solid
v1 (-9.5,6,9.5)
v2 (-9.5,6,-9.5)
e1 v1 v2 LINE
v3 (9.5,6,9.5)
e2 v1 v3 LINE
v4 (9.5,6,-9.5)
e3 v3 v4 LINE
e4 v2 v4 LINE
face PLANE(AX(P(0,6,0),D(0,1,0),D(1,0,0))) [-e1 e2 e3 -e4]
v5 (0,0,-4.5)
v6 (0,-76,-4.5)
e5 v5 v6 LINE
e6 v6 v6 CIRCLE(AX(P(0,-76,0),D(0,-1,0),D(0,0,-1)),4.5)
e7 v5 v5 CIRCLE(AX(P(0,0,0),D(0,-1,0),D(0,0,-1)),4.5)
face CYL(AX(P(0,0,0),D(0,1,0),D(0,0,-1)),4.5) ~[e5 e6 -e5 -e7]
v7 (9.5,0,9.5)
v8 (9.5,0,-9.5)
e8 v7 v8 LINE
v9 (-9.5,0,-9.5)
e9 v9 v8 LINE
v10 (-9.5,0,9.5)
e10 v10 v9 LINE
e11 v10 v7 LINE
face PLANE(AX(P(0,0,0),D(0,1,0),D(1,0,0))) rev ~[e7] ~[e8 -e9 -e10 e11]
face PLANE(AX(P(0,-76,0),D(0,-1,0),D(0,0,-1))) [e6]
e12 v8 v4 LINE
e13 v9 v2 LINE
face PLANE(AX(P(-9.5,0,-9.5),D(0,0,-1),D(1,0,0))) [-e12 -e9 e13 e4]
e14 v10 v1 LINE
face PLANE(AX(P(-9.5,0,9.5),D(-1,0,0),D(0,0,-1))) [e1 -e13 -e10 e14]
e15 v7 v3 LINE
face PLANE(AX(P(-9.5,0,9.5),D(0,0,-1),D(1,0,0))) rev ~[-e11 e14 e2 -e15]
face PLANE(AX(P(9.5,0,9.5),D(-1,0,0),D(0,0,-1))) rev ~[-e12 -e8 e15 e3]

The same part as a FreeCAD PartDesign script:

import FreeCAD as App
import Part
import Sketcher
from FreeCAD import Vector
Q = App.Units.Quantity


def add_polygon(sketch, points):
    """Adds a closed chain of lines whose ends are joined by coincident constraints."""
    first, n = sketch.GeometryCount, len(points)
    for a, b in zip(points, points[1:] + points[:1]):
        sketch.addGeometry(Part.LineSegment(App.Vector(*a, 0), App.Vector(*b, 0)), False)
    for i in range(n):
        sketch.addConstraint(Sketcher.Constraint("Coincident", first + i, 2, first + (i + 1) % n, 1))

doc = App.newDocument("Part")
body = doc.addObject("PartDesign::Body", "Body")

sketch1 = body.newObject("Sketcher::SketchObject", "Sketch")
sketch1.AttachmentSupport = (doc.getObject("XZ_Plane"), [""])
sketch1.MapMode = "FlatFace"
add_polygon(sketch1, [(-10, -10), (-10, 10), (10, 10), (10, -10)])
sketch1.addConstraint([
    Sketcher.Constraint("Vertical", 0),
    Sketcher.Constraint("Horizontal", 1),
    Sketcher.Constraint("Vertical", 2),
    Sketcher.Constraint("Horizontal", 3),
    Sketcher.Constraint("Symmetric", 0, 2, 2, 2, -1, 1),
    Sketcher.Constraint("Equal", 3, 0),
    Sketcher.Constraint("DistanceX", 1, 1, 1, 2, Q("19 mm")),
])
pad1 = body.newObject("PartDesign::Pad", "Pad")
pad1.Profile = sketch1
pad1.Length = 6
pad1.Reversed = True

sketch2 = body.newObject("Sketcher::SketchObject", "Sketch001")
sketch2.AttachmentSupport = (doc.getObject("XZ_Plane"), [""])
sketch2.MapMode = "FlatFace"
sketch2.addGeometry(Part.Circle(Vector(0, 0, 0), Vector(0, 0, 1), 4.5), False)
sketch2.addConstraint([
    Sketcher.Constraint("Coincident", 0, 3, -1, 1),
    Sketcher.Constraint("Diameter", 0, Q("9 mm")),
])
pad2 = body.newObject("PartDesign::Pad", "Pad001")
pad2.Profile = sketch2
pad2.Length = 76

doc.recompute()
